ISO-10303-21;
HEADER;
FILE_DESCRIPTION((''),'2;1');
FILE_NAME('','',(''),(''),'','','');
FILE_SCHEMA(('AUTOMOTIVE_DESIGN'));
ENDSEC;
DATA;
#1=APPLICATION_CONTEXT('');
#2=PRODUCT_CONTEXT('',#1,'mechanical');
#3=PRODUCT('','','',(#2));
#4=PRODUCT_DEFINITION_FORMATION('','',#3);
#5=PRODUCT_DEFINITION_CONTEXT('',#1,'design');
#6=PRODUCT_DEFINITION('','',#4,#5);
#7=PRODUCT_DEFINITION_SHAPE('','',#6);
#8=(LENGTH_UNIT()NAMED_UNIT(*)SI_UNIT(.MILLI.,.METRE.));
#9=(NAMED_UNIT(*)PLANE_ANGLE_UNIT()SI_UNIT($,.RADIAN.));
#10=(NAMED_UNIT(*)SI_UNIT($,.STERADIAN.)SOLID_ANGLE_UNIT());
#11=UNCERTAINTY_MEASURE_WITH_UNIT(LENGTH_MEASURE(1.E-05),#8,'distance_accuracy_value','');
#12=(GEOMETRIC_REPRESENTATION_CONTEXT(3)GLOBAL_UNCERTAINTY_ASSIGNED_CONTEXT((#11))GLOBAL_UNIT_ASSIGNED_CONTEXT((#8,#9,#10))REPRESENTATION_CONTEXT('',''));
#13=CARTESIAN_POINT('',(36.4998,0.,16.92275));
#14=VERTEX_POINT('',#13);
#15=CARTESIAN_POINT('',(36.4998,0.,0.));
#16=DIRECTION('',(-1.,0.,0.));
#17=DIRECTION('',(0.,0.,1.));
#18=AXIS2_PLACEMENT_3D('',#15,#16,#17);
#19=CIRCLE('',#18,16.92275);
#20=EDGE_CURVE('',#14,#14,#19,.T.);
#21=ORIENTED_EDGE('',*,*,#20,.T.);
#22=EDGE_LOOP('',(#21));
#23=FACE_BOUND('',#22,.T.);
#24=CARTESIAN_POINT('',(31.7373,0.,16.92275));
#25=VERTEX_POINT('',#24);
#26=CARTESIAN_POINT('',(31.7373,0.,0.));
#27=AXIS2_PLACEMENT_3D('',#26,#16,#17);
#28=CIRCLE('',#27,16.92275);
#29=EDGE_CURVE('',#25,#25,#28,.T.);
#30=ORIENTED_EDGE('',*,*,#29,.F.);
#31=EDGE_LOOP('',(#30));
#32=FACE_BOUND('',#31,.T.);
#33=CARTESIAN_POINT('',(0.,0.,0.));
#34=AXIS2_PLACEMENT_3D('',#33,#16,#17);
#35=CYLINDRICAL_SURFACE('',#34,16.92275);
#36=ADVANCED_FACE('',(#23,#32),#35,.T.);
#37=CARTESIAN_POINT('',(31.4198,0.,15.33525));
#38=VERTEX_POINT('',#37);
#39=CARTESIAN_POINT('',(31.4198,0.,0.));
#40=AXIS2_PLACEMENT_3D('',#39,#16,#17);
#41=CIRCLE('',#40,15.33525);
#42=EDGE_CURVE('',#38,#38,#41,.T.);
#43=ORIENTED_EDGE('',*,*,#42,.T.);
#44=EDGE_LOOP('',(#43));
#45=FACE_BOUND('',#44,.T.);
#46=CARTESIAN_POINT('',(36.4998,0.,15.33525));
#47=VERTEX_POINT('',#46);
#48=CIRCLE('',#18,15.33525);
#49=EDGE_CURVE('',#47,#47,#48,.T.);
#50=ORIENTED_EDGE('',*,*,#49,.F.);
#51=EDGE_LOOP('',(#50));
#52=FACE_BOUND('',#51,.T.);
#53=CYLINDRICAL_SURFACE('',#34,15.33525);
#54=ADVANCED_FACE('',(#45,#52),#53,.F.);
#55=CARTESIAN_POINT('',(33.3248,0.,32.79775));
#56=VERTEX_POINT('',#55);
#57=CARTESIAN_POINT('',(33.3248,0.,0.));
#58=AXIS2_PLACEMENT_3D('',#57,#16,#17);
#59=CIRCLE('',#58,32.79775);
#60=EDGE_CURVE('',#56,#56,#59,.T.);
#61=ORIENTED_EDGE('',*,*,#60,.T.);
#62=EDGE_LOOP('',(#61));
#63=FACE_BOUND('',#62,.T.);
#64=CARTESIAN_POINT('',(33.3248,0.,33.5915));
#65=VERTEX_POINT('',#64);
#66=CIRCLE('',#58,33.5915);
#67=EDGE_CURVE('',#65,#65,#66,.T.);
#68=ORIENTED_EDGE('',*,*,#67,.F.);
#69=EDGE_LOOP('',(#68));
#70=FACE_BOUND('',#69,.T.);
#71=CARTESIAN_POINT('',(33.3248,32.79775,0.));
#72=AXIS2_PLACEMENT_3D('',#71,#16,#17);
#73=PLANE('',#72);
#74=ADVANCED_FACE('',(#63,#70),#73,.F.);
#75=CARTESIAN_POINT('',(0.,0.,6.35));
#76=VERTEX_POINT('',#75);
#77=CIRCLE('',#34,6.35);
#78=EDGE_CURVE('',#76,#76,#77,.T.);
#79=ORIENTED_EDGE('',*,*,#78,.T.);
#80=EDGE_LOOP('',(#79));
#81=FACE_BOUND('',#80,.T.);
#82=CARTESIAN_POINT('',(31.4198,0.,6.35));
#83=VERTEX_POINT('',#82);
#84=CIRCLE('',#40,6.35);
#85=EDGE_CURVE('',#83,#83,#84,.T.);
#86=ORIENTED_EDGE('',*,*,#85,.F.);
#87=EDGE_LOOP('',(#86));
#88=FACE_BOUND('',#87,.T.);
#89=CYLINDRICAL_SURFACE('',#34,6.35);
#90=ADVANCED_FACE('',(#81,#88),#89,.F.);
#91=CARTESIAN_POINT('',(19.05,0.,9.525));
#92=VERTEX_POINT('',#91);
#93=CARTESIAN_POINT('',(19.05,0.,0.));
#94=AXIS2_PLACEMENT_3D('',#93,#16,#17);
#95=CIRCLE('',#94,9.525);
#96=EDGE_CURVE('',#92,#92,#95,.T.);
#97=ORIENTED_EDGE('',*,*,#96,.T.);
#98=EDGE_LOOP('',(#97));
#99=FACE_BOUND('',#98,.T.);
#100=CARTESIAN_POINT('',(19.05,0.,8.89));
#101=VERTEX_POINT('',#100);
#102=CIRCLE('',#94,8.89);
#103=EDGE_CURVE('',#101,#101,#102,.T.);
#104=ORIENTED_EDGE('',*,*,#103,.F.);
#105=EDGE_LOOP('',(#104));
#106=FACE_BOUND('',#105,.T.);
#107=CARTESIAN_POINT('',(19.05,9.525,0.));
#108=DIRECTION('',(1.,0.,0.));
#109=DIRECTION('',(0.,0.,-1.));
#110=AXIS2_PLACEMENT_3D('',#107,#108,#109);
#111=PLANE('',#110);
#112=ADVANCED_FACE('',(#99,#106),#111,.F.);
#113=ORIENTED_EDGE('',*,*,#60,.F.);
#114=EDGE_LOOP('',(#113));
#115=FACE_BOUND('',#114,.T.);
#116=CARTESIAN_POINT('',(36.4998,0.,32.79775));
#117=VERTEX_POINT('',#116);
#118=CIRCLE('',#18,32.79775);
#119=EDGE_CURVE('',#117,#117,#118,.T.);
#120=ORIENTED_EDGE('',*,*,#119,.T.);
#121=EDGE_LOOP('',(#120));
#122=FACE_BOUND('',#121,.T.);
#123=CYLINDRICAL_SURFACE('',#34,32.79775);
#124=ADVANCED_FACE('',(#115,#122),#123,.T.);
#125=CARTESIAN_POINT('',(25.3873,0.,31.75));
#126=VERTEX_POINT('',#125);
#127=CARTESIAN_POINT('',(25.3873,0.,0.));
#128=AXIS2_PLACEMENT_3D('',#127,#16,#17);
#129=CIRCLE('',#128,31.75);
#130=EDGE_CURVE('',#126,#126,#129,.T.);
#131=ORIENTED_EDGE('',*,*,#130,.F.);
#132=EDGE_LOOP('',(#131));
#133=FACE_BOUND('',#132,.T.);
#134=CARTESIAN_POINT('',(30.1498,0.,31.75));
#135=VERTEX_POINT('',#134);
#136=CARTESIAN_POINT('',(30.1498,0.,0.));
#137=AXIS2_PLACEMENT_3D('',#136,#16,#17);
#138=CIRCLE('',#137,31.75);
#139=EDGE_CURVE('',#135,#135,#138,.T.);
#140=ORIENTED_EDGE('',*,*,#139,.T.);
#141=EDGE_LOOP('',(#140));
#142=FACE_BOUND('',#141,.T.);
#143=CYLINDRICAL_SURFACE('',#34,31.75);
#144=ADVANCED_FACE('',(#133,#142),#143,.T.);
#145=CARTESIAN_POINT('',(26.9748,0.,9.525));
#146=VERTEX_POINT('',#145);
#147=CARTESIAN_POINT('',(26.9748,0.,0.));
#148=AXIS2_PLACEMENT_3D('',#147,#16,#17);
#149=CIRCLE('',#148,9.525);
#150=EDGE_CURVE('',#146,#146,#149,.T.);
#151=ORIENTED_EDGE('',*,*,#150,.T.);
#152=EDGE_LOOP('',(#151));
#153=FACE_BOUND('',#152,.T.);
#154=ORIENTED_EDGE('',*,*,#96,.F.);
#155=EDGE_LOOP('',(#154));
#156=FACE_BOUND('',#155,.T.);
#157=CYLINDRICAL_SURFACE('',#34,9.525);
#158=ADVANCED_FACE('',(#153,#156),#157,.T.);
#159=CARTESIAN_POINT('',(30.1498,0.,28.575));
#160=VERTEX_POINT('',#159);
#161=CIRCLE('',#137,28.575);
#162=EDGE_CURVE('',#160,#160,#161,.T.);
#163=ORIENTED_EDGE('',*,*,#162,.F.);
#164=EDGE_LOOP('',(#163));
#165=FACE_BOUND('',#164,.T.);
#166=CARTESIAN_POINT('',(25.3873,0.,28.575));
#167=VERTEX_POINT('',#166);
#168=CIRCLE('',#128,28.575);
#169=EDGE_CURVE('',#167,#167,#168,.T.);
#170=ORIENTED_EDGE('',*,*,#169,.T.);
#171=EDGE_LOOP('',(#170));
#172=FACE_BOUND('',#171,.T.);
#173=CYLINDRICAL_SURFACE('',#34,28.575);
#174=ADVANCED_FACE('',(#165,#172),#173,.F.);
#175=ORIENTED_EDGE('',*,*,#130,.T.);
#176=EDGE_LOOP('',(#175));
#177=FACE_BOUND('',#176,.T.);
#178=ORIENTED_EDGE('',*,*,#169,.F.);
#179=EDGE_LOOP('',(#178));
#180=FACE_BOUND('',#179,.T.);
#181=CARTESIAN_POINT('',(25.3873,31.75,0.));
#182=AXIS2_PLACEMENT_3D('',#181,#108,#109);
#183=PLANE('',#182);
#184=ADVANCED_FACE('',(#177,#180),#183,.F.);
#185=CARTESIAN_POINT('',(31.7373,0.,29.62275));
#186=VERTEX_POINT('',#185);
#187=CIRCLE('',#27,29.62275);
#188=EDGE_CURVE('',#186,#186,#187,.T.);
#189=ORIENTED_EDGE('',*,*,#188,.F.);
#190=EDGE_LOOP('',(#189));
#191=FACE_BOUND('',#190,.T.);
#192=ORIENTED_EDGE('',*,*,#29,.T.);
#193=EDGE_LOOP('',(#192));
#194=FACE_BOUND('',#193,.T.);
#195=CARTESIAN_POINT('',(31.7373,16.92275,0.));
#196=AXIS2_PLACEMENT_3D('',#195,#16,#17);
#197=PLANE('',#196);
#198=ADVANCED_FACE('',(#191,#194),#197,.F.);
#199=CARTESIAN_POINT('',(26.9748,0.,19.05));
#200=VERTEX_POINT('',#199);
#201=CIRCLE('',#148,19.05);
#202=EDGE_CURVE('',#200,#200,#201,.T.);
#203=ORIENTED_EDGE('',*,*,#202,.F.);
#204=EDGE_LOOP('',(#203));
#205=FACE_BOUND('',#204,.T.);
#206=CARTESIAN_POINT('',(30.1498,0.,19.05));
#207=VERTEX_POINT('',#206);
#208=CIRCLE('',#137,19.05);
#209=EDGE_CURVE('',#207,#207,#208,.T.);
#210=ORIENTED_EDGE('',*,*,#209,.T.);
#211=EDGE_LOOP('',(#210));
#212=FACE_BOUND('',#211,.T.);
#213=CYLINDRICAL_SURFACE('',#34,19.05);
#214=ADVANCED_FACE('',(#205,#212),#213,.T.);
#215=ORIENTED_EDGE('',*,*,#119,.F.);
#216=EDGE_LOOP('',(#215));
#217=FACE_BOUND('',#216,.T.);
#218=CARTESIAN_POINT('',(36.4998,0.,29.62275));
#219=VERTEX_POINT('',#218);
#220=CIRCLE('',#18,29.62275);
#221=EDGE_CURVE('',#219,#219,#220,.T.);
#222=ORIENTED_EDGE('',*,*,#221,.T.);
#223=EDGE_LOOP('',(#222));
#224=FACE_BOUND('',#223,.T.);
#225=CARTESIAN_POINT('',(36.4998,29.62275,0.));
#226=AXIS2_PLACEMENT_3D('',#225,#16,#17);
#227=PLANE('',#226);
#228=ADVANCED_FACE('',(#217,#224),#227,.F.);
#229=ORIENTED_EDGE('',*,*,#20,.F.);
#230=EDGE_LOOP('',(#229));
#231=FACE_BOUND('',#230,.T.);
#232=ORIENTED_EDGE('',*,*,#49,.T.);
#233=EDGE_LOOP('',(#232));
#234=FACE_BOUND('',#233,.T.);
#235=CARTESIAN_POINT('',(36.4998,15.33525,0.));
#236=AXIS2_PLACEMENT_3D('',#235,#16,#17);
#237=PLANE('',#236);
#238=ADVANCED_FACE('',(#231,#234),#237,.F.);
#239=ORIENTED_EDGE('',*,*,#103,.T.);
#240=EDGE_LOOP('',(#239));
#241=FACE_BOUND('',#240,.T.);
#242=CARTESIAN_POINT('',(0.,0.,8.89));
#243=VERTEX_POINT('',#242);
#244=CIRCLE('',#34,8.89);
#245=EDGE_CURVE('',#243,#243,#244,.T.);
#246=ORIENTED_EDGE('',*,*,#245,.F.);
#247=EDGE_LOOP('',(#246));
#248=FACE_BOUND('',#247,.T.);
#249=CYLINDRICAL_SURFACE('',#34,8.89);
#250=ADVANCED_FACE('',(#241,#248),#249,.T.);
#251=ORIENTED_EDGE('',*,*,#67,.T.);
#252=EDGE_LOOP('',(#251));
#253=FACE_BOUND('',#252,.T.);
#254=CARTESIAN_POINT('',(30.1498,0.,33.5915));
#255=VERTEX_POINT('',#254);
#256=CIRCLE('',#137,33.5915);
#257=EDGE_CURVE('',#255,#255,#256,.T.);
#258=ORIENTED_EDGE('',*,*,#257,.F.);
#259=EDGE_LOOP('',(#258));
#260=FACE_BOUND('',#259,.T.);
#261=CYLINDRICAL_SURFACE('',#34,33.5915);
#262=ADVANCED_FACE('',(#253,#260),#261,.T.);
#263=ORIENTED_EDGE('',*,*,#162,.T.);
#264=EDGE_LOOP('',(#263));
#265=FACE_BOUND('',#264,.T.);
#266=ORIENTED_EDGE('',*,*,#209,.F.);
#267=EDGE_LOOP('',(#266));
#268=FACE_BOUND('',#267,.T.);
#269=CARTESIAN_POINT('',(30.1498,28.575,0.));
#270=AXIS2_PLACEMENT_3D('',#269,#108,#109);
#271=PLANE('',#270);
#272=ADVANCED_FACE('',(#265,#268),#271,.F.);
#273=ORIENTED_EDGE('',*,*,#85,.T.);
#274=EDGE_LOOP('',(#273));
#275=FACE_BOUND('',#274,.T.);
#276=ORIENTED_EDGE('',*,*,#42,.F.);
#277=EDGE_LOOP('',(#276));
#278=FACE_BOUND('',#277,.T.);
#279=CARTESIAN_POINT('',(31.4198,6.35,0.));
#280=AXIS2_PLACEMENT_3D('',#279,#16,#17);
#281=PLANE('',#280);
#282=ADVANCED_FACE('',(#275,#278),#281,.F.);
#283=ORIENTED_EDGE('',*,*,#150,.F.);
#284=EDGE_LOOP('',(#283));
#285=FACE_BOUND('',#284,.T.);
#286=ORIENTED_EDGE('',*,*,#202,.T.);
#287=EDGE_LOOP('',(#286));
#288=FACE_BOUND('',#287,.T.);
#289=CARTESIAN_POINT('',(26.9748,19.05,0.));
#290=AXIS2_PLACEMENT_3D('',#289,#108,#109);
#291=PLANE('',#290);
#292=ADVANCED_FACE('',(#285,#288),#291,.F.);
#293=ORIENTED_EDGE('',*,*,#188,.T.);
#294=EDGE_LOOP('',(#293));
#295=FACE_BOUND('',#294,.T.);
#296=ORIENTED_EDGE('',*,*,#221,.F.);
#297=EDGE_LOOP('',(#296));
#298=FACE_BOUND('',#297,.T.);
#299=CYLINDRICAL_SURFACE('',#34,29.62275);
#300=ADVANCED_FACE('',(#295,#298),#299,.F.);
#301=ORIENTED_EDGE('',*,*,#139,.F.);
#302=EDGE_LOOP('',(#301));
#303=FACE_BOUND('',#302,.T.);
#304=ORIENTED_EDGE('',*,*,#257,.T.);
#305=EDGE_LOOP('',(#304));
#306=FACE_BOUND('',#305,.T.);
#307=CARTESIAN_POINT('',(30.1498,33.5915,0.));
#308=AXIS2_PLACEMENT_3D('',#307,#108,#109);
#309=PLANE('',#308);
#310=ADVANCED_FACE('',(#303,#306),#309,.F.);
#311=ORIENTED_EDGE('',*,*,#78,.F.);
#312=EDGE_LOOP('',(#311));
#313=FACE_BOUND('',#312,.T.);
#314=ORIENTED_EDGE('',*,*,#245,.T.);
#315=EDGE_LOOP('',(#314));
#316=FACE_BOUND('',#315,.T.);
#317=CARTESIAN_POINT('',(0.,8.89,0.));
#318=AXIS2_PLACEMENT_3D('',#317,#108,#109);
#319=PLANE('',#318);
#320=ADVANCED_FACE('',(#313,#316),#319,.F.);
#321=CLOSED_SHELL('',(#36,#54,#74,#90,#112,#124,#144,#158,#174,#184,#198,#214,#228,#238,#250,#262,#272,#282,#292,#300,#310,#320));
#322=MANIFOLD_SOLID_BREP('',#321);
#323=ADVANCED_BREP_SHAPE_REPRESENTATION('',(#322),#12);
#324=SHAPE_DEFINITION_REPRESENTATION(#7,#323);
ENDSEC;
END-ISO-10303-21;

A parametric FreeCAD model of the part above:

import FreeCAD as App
import Part
import Sketcher
Q = App.Units.Quantity


def add_polygon(sketch, points):
    """Adds a closed chain of lines whose ends are joined by coincident constraints."""
    first, n = sketch.GeometryCount, len(points)
    for a, b in zip(points, points[1:] + points[:1]):
        sketch.addGeometry(Part.LineSegment(App.Vector(*a, 0), App.Vector(*b, 0)), False)
    for i in range(n):
        sketch.addConstraint(Sketcher.Constraint("Coincident", first + i, 2, first + (i + 1) % n, 1))

doc = App.newDocument("Part")
params = doc.addObject("Spreadsheet::Sheet", "Params")
for row, (alias, value) in enumerate([
    ("sketch1_width", "0.2 in"),
    ("sketch1_height", "0.5 in"),
    ("sketch1_height2", "0.1 in"),
    ("sketch1_width2", "0.75 in"),
    ("sketch1_width3", "1.237 in"),
    ("revolution_angle", "360 deg"),
], start=1):
    params.set(f"A{row}", alias)
    params.set(f"B{row}", "=" + value)
    params.setAlias(f"B{row}", alias)

body = doc.addObject("PartDesign::Body", "Body")

sketch1 = body.newObject("Sketcher::SketchObject", "Sketch")
sketch1.AttachmentSupport = (doc.getObject("XY_Plane"), [""])
sketch1.MapMode = "FlatFace"
add_polygon(sketch1, [(0, 6.3), (31.4, 6.3), (31.4, 15.3), (36.5, 15.3), (36.5, 16.9), (31.7, 16.9), (31.7, 29.6), (36.5, 29.6), (36.5, 32.8), (33.3, 32.8), (33.3, 33.6), (30.1, 33.6), (30.1, 31.8), (25.4, 31.8), (25.4, 28.6), (30.1, 28.6), (30.1, 19.1), (27, 19.1), (27, 9.5), (19.1, 9.5), (19.1, 8.9), (0, 8.9)])
sketch1.addConstraint(Sketcher.Constraint("Horizontal", 0))
sketch1.addConstraint(Sketcher.Constraint("Vertical", 1))
sketch1.addConstraint(Sketcher.Constraint("Horizontal", 2))
sketch1.addConstraint(Sketcher.Constraint("Vertical", 3))
sketch1.addConstraint(Sketcher.Constraint("Horizontal", 4))
sketch1.addConstraint(Sketcher.Constraint("Vertical", 5))
sketch1.addConstraint(Sketcher.Constraint("Horizontal", 6))
sketch1.addConstraint(Sketcher.Constraint("Vertical", 7))
sketch1.addConstraint(Sketcher.Constraint("Horizontal", 8))
sketch1.addConstraint(Sketcher.Constraint("Vertical", 9))
sketch1.addConstraint(Sketcher.Constraint("Horizontal", 10))
sketch1.addConstraint(Sketcher.Constraint("Vertical", 11))
sketch1.addConstraint(Sketcher.Constraint("Horizontal", 12))
sketch1.addConstraint(Sketcher.Constraint("Vertical", 13))
sketch1.addConstraint(Sketcher.Constraint("Horizontal", 14))
sketch1.addConstraint(Sketcher.Constraint("Vertical", 15))
sketch1.addConstraint(Sketcher.Constraint("Horizontal", 16))
sketch1.addConstraint(Sketcher.Constraint("Vertical", 17))
sketch1.addConstraint(Sketcher.Constraint("Horizontal", 18))
sketch1.addConstraint(Sketcher.Constraint("Vertical", 19))
sketch1.addConstraint(Sketcher.Constraint("Horizontal", 20))
sketch1.addConstraint(Sketcher.Constraint("Vertical", 21))
sketch1.addConstraint(Sketcher.Constraint("PointOnObject", 20, 2, -2))
sketch1.addConstraint(Sketcher.Constraint("Vertical", 3, 2, 6, 2))
sketch1.addConstraint(Sketcher.Constraint("Vertical", 11, 2, 14, 2))
sketch1.addConstraint(Sketcher.Constraint("Equal", 8, 10))
sketch1.addConstraint(Sketcher.Constraint("Equal", 6, 12))
sketch1.addConstraint(Sketcher.Constraint("Equal", 10, 16))
sketch1.addConstraint(Sketcher.Constraint("Equal", 16, 7))
sketch1.addConstraint(Sketcher.Constraint("Equal", 7, 13))
sketch1.addConstraint(Sketcher.Constraint("Equal", 15, 17))
sketch1.addConstraint(Sketcher.Constraint("DistanceX", 2, 1, 2, 2, Q("0.2 in")))
sketch1.addConstraint(Sketcher.Constraint("DistanceY", 5, 1, 5, 2, Q("0.5 in")))
sketch1.addConstraint(Sketcher.Constraint("DistanceY", 21, 2, 21, 1, Q("0.1 in")))
sketch1.addConstraint(Sketcher.Constraint("DistanceX", 20, 2, 20, 1, Q("0.75 in")))
sketch1.addConstraint(Sketcher.Constraint("DistanceY", 19, 2, 16, 2, Q("0.4 in")))
sketch1.addConstraint(Sketcher.Constraint("DistanceX", 0, 1, 0, 2, Q("1.237 in")))
sketch1.addConstraint(Sketcher.Constraint("DistanceX", 4, 2, 4, 1, Q("0.1875 in")))
sketch1.addConstraint(Sketcher.Constraint("DistanceX", 8, 2, 8, 1, Q("0.125 in")))
sketch1.addConstraint(Sketcher.Constraint("DistanceY", 3, 1, 3, 2, Q("0.0625 in")))
sketch1.addConstraint(Sketcher.Constraint("DistanceY", 9, 1, 9, 2, Q("0.03125 in")))
sketch1.addConstraint(Sketcher.Constraint("DistanceY", 15, 2, 15, 1, Q("0.375 in")))
sketch1.addConstraint(Sketcher.Constraint("DistanceY", -1, 1, 0, 2, Q("0.25 in")))
sketch1.addConstraint(Sketcher.Constraint("DistanceY", 11, 2, 11, 1, Q("0.0725 in")))
sketch1.setExpression("Constraints[53]", "Params.sketch1_width")
sketch1.setExpression("Constraints[54]", "Params.sketch1_height")
sketch1.setExpression("Constraints[55]", "Params.sketch1_height2")
sketch1.setExpression("Constraints[56]", "Params.sketch1_width2")
sketch1.setExpression("Constraints[58]", "Params.sketch1_width3")
revolution = body.newObject("PartDesign::Revolution", "Revolution")
revolution.Profile = sketch1
revolution.ReferenceAxis = (sketch1, ["H_Axis"])
revolution.setExpression("Angle", "Params.revolution_angle")

doc.recompute()
